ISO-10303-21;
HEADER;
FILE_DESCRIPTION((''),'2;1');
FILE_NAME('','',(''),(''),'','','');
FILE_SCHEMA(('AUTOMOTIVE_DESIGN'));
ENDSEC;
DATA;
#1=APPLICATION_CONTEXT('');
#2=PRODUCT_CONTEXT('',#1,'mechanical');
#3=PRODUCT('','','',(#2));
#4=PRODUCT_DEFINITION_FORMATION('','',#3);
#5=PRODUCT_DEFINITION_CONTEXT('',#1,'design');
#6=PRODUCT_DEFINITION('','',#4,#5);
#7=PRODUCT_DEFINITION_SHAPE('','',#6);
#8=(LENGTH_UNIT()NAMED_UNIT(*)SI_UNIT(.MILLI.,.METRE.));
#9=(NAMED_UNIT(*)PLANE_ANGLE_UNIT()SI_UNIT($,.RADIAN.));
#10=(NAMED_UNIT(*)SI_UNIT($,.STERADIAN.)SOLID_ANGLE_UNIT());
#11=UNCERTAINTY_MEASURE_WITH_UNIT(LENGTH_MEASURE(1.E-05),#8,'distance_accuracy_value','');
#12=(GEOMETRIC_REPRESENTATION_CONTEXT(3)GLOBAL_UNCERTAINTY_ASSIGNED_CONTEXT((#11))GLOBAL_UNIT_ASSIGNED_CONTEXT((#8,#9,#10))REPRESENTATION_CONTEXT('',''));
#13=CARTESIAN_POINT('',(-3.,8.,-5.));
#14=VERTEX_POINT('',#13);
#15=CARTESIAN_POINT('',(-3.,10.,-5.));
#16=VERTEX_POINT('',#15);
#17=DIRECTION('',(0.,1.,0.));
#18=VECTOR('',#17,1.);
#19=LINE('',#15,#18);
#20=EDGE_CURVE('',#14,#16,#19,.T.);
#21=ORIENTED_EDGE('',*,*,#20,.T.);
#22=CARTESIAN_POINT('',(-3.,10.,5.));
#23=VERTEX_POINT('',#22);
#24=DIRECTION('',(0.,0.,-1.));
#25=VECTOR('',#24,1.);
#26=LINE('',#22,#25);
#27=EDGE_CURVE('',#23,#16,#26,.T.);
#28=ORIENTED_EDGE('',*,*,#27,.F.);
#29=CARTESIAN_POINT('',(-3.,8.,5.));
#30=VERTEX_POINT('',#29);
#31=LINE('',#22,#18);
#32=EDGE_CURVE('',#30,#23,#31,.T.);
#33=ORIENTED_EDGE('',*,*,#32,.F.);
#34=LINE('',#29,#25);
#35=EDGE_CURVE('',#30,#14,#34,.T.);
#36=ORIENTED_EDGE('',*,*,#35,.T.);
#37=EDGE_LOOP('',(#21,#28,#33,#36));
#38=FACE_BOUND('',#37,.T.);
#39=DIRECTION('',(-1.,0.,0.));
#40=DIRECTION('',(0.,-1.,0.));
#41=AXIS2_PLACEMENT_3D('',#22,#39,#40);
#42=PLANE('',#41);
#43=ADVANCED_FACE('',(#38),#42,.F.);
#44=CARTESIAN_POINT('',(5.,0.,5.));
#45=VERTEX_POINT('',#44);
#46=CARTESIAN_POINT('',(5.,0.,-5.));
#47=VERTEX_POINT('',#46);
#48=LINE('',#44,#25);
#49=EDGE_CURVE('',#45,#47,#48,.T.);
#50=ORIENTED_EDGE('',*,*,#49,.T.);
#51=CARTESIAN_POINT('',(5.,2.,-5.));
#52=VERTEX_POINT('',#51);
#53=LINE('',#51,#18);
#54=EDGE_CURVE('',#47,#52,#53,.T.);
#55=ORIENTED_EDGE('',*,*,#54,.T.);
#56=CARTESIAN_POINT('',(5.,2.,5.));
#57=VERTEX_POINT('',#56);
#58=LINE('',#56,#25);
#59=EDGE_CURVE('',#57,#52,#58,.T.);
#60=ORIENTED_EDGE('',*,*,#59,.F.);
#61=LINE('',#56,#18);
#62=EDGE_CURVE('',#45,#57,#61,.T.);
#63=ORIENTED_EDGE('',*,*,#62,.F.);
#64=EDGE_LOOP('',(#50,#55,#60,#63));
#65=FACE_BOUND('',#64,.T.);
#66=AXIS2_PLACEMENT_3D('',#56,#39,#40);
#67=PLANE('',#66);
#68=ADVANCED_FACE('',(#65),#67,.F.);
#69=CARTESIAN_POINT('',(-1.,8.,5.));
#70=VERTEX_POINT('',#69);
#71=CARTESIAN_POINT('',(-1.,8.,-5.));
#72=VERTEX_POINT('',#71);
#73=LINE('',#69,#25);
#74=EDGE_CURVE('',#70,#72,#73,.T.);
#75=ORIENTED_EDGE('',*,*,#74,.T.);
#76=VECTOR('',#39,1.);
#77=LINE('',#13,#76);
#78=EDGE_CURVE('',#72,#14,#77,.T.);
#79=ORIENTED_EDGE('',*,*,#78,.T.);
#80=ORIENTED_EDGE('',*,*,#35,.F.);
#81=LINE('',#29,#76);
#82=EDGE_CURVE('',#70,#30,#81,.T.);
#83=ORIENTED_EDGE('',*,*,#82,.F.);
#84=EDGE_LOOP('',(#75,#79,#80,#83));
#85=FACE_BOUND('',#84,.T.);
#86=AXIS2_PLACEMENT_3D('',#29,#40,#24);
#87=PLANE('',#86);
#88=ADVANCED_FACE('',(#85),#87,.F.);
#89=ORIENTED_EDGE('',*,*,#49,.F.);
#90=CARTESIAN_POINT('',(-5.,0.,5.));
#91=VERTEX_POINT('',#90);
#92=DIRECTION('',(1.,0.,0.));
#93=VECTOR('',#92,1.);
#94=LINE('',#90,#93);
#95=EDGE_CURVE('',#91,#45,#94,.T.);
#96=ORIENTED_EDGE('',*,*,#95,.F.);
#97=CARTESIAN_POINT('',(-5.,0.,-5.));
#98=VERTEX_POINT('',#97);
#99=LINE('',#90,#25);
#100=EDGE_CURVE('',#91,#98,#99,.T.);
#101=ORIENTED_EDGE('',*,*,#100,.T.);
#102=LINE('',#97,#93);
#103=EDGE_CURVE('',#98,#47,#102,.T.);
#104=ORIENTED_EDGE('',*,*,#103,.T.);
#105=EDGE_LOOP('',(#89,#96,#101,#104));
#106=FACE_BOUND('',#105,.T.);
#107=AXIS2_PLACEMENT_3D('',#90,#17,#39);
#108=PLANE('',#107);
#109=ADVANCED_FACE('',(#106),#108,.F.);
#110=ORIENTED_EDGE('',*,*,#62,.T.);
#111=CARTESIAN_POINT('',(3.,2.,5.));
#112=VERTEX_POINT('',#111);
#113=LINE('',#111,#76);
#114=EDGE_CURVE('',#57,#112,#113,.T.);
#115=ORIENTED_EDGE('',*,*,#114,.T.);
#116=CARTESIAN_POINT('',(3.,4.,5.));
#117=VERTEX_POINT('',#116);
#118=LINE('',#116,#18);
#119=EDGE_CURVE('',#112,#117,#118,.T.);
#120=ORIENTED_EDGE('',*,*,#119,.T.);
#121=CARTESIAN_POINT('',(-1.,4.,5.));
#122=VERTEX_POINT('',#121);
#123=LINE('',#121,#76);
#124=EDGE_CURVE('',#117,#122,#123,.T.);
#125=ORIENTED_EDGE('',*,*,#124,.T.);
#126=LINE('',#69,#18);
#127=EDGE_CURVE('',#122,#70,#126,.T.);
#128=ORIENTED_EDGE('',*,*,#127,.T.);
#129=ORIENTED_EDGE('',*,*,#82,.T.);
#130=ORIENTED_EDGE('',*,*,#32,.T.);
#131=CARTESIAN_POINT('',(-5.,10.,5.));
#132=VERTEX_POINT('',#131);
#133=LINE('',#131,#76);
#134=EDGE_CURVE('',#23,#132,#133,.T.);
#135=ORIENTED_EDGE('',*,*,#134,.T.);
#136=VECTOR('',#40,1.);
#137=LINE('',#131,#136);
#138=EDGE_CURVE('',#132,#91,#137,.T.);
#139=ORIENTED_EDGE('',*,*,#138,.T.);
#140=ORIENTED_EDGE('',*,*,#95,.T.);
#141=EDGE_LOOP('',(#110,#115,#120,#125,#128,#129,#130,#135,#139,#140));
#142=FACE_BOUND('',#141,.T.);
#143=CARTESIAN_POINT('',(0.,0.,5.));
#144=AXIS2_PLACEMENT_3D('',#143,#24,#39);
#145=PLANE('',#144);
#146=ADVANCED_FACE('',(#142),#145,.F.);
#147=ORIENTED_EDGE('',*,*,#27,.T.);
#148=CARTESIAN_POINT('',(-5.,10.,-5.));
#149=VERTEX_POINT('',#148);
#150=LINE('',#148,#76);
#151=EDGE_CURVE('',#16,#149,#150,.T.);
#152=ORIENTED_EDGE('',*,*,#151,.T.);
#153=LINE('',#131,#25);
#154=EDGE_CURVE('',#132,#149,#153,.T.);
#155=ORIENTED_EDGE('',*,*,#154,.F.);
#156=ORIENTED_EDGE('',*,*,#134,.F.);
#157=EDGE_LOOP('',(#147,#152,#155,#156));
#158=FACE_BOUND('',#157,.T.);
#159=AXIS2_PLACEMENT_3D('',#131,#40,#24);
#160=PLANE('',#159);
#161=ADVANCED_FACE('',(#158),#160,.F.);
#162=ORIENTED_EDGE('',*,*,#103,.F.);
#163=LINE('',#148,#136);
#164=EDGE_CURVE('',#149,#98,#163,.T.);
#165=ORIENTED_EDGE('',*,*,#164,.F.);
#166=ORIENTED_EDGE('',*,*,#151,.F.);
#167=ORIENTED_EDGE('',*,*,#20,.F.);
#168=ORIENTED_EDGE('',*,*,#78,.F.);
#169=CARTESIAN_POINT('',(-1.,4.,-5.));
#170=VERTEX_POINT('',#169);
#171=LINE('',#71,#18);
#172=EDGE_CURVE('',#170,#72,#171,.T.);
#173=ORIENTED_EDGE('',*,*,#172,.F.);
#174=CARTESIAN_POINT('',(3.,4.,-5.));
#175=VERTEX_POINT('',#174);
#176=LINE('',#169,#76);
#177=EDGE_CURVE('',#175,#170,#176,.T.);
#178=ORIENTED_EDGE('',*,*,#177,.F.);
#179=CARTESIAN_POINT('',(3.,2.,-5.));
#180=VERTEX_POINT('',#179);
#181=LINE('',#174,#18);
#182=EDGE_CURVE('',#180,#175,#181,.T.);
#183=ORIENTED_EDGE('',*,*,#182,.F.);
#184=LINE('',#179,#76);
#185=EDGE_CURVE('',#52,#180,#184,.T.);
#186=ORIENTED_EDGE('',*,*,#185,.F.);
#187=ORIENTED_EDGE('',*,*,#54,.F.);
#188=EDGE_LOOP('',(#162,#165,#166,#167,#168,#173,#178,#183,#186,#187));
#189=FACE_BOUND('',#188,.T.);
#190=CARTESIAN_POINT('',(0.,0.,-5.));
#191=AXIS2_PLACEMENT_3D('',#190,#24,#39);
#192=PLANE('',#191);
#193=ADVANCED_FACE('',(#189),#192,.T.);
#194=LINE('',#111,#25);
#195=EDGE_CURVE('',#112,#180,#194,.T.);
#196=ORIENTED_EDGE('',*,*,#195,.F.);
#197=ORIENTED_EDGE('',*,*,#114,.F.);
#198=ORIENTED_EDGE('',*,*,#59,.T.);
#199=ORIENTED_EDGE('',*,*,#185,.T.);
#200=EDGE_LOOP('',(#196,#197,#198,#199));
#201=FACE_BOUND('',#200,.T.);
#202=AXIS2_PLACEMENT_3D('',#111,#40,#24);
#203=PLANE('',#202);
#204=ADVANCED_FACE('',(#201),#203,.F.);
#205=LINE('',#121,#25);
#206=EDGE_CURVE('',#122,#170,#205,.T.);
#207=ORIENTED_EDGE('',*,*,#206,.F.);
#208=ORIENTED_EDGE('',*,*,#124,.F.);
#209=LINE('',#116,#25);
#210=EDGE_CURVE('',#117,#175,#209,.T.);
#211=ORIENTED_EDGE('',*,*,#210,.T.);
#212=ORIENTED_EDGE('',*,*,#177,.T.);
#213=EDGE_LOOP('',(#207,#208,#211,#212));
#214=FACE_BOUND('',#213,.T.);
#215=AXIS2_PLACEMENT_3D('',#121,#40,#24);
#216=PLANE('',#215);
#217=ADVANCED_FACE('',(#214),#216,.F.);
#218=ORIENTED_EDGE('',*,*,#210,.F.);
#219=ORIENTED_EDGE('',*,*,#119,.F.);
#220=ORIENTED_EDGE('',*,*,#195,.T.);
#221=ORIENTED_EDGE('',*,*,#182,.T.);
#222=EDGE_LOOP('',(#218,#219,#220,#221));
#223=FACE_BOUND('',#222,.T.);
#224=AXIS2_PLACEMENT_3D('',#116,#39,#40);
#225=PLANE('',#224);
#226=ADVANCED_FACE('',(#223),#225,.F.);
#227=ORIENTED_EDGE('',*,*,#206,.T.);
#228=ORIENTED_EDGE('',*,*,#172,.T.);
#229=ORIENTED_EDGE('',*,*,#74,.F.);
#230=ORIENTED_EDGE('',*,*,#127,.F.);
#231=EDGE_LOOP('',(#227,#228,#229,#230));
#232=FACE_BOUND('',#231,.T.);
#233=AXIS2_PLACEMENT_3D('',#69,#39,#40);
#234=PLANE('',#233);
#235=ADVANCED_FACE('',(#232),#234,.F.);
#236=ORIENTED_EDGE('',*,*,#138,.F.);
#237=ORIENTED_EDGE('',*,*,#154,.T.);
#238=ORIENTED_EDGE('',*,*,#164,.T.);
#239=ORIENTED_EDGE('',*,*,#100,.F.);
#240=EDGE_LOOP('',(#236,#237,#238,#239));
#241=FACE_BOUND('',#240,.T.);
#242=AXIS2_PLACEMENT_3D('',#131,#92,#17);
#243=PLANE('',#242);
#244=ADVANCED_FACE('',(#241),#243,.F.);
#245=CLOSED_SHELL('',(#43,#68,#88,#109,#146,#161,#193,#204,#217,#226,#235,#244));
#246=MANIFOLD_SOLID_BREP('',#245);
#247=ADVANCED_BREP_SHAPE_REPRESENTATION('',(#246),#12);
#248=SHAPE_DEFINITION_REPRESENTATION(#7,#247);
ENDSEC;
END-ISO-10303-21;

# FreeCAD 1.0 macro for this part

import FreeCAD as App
import Part
import Sketcher

V = App.Vector
Q = App.Units.Quantity

doc = App.newDocument("Part")
body = doc.addObject("PartDesign::Body", "Body")

# Sketch on XY plane
sketch1 = body.newObject("Sketcher::SketchObject", "Sketch")
sketch1.AttachmentSupport = (doc.getObject("XY_Plane"), [""])
sketch1.MapMode = "FlatFace"
sketch1.addGeometry([
    Part.LineSegment(V(-5, 10, 0), V(-5, 0, 0)),  # 0
    Part.LineSegment(V(-5, 0, 0), V(5, 0, 0)),  # 1
    Part.LineSegment(V(5, 0, 0), V(5, 2, 0)),  # 2
    Part.LineSegment(V(5, 2, 0), V(3, 2, 0)),  # 3
    Part.LineSegment(V(3, 2, 0), V(3, 4, 0)),  # 4
    Part.LineSegment(V(3, 4, 0), V(-1, 4, 0)),  # 5
    Part.LineSegment(V(-1, 4, 0), V(-1, 8, 0)),  # 6
    Part.LineSegment(V(-1, 8, 0), V(-3, 8, 0)),  # 7
    Part.LineSegment(V(-3, 8, 0), V(-3, 10, 0)),  # 8
    Part.LineSegment(V(-3, 10, 0), V(-5, 10, 0)),  # 9
], False)
sketch1.addConstraint([
    Sketcher.Constraint("Coincident", 0, 2, 1, 1),
    Sketcher.Constraint("Coincident", 1, 2, 2, 1),
    Sketcher.Constraint("Coincident", 2, 2, 3, 1),
    Sketcher.Constraint("Coincident", 3, 2, 4, 1),
    Sketcher.Constraint("Coincident", 4, 2, 5, 1),
    Sketcher.Constraint("Coincident", 5, 2, 6, 1),
    Sketcher.Constraint("Coincident", 6, 2, 7, 1),
    Sketcher.Constraint("Coincident", 7, 2, 8, 1),
    Sketcher.Constraint("Coincident", 8, 2, 9, 1),
    Sketcher.Constraint("Coincident", 9, 2, 0, 1),
    Sketcher.Constraint("Vertical", 0),
    Sketcher.Constraint("Horizontal", 1),
    Sketcher.Constraint("Vertical", 2),
    Sketcher.Constraint("Horizontal", 3),
    Sketcher.Constraint("Vertical", 4),
    Sketcher.Constraint("Horizontal", 5),
    Sketcher.Constraint("Vertical", 6),
    Sketcher.Constraint("Horizontal", 7),
    Sketcher.Constraint("Vertical", 8),
    Sketcher.Constraint("Horizontal", 9),
    Sketcher.Constraint("Symmetric", 0, 2, 1, 2, -1, 1),
    Sketcher.Constraint("Equal", 3, 7),
    Sketcher.Constraint("Equal", 7, 9),
    Sketcher.Constraint("Equal", 1, 0),
    Sketcher.Constraint("Equal", 9, 2),
    Sketcher.Constraint("Equal", 2, 4),
    Sketcher.Constraint("Equal", 5, 6),
    Sketcher.Constraint("DistanceX", 1, 1, 1, 2, Q("10 mm")),
    Sketcher.Constraint("DistanceX", 3, 2, 3, 1, Q("2 mm")),
])
pad1 = body.newObject("PartDesign::Pad", "Pad")
pad1.Profile = sketch1
pad1.Length = 10
pad1.Midplane = True

doc.recompute()
